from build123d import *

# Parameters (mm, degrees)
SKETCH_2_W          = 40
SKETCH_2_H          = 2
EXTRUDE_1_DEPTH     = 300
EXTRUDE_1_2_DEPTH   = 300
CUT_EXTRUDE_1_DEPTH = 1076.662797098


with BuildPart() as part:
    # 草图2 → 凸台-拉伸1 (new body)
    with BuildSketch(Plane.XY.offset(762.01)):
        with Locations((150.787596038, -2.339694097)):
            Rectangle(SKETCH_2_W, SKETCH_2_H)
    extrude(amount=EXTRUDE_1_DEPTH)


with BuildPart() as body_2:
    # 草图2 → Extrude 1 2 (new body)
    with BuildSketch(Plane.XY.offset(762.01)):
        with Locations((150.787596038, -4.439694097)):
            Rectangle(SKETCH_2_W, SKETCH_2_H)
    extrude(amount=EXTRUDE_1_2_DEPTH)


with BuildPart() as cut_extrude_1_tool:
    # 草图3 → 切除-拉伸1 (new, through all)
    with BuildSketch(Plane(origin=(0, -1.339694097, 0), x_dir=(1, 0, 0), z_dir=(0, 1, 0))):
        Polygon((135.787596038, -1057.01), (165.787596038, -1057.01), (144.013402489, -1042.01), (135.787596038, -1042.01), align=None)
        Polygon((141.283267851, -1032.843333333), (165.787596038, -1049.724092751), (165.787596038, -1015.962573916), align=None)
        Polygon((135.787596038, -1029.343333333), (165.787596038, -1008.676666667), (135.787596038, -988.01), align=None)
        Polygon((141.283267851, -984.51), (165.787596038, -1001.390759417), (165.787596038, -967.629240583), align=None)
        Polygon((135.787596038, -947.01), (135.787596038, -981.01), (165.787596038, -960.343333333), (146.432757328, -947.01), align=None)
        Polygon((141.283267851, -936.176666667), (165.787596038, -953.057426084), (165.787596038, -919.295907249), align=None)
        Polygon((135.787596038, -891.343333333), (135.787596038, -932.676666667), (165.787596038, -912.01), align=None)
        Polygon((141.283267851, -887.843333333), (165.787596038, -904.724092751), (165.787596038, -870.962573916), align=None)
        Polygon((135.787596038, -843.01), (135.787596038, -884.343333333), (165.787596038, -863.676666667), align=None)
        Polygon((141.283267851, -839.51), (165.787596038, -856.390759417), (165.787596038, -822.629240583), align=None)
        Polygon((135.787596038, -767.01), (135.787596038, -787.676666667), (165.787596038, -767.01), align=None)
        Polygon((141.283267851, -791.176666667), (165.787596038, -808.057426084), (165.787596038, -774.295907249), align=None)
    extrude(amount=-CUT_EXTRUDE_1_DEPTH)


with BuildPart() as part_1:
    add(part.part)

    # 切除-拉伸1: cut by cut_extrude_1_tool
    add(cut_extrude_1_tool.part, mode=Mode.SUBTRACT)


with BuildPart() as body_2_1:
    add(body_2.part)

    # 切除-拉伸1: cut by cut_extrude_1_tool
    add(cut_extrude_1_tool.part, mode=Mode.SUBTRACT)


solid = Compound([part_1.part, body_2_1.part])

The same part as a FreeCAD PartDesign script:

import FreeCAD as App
import Part
import Sketcher
Q = App.Units.Quantity


def add_polygon(sketch, points):
    """Adds a closed chain of lines whose ends are joined by coincident constraints."""
    first, n = sketch.GeometryCount, len(points)
    for a, b in zip(points, points[1:] + points[:1]):
        sketch.addGeometry(Part.LineSegment(App.Vector(*a, 0), App.Vector(*b, 0)), False)
    for i in range(n):
        sketch.addConstraint(Sketcher.Constraint("Coincident", first + i, 2, first + (i + 1) % n, 1))

doc = App.newDocument("Part")
body = doc.addObject("PartDesign::Body", "Body")

# Sketch on XY plane
sketch1 = body.newObject("Sketcher::SketchObject", "Sketch")
sketch1.AttachmentSupport = (doc.getObject("XY_Plane"), [""])
sketch1.MapMode = "FlatFace"
sketch1.AttachmentOffset = App.Placement(App.Vector(0, 0, 762.01), App.Rotation())
add_polygon(sketch1, [(130.787596, -1.339694), (130.787596, -3.339694), (170.787596, -3.339694), (170.787596, -1.339694)])  # lines 0-3
sketch1.addConstraint([
    Sketcher.Constraint("Vertical", 0),
    Sketcher.Constraint("Horizontal", 1),
    Sketcher.Constraint("Vertical", 2),
    Sketcher.Constraint("Horizontal", 3),
    Sketcher.Constraint("DistanceX", 1, 1, 1, 2, Q("40 mm")),
    Sketcher.Constraint("DistanceY", 0, 2, 0, 1, Q("2 mm")),
    Sketcher.Constraint("DistanceX", -1, 1, 0, 2, Q("130.787596 mm")),
    Sketcher.Constraint("DistanceY", 0, 2, -1, 1, Q("3.339694 mm")),
])
pad1 = body.newObject("PartDesign::Pad", "Pad")
pad1.Profile = sketch1
pad1.Length = 300
body2 = doc.addObject("PartDesign::Body", "Body001")

# Sketch on XY plane
sketch2 = body2.newObject("Sketcher::SketchObject", "Sketch001")
sketch2.AttachmentSupport = (doc.getObject("XY_Plane001"), [""])
sketch2.MapMode = "FlatFace"
sketch2.AttachmentOffset = App.Placement(App.Vector(0, 0, 762.01), App.Rotation())
add_polygon(sketch2, [(130.787596, -3.439694), (130.787596, -5.439694), (170.787596, -5.439694), (170.787596, -3.439694)])  # lines 0-3
sketch2.addConstraint([
    Sketcher.Constraint("Vertical", 0),
    Sketcher.Constraint("Horizontal", 1),
    Sketcher.Constraint("Vertical", 2),
    Sketcher.Constraint("Horizontal", 3),
    Sketcher.Constraint("DistanceX", 1, 1, 1, 2, Q("40 mm")),
    Sketcher.Constraint("DistanceY", 0, 2, 0, 1, Q("2 mm")),
    Sketcher.Constraint("DistanceX", -1, 1, 0, 2, Q("130.787596 mm")),
    Sketcher.Constraint("DistanceY", 0, 2, -1, 1, Q("5.439694 mm")),
])
pad2 = body2.newObject("PartDesign::Pad", "Pad001")
pad2.Profile = sketch2
pad2.Length = 300
body3 = doc.addObject("PartDesign::Body", "Body002")
body3.AllowCompound = True

# Sketch on XZ plane
sketch3 = body3.newObject("Sketcher::SketchObject", "Sketch002")
sketch3.AttachmentSupport = (doc.getObject("XZ_Plane002"), [""])
sketch3.MapMode = "FlatFace"
sketch3.AttachmentOffset = App.Placement(App.Vector(0, 0, 1.339694), App.Rotation())
add_polygon(sketch3, [(135.787596, 1057.01), (165.787596, 1057.01), (144.013402, 1042.01), (135.787596, 1042.01)])  # lines 0-3
add_polygon(sketch3, [(141.283268, 1032.843333), (165.787596, 1049.724093), (165.787596, 1015.962574)])  # lines 4-6
add_polygon(sketch3, [(135.787596, 1029.343333), (165.787596, 1008.676667), (135.787596, 988.01)])  # lines 7-9
add_polygon(sketch3, [(141.283268, 984.51), (165.787596, 1001.390759), (165.787596, 967.629241)])  # lines 10-12
add_polygon(sketch3, [(135.787596, 947.01), (135.787596, 981.01), (165.787596, 960.343333), (146.432757, 947.01)])  # lines 13-16
add_polygon(sketch3, [(141.283268, 936.176667), (165.787596, 953.057426), (165.787596, 919.295907)])  # lines 17-19
add_polygon(sketch3, [(135.787596, 891.343333), (135.787596, 932.676667), (165.787596, 912.01)])  # lines 20-22
add_polygon(sketch3, [(141.283268, 887.843333), (165.787596, 904.724093), (165.787596, 870.962574)])  # lines 23-25
add_polygon(sketch3, [(135.787596, 843.01), (135.787596, 884.343333), (165.787596, 863.676667)])  # lines 26-28
add_polygon(sketch3, [(141.283268, 839.51), (165.787596, 856.390759), (165.787596, 822.629241)])  # lines 29-31
add_polygon(sketch3, [(135.787596, 767.01), (135.787596, 787.676667), (165.787596, 767.01)])  # lines 32-34
add_polygon(sketch3, [(141.283268, 791.176667), (165.787596, 808.057426), (165.787596, 774.295907)])  # lines 35-37
sketch3.addConstraint([
    Sketcher.Constraint("Horizontal", 0),
    Sketcher.Constraint("Horizontal", 2),
    Sketcher.Constraint("Vertical", 3),
    Sketcher.Constraint("Vertical", 5),
    Sketcher.Constraint("Vertical", 9),
    Sketcher.Constraint("Vertical", 11),
    Sketcher.Constraint("Vertical", 13),
    Sketcher.Constraint("Horizontal", 16),
    Sketcher.Constraint("Vertical", 18),
    Sketcher.Constraint("Vertical", 20),
    Sketcher.Constraint("Vertical", 24),
    Sketcher.Constraint("Vertical", 26),
    Sketcher.Constraint("Vertical", 30),
    Sketcher.Constraint("Vertical", 32),
    Sketcher.Constraint("Horizontal", 34),
    Sketcher.Constraint("Vertical", 36),
    Sketcher.Constraint("Parallel", 1, 4),
    Sketcher.Constraint("Parallel", 6, 7),
    Sketcher.Constraint("Parallel", 4, 8),
    Sketcher.Constraint("Parallel", 8, 10),
    Sketcher.Constraint("Parallel", 7, 12),
    Sketcher.Constraint("Parallel", 12, 14),
    Sketcher.Constraint("Parallel", 10, 15),
    Sketcher.Constraint("Parallel", 15, 17),
    Sketcher.Constraint("Parallel", 14, 19),
    Sketcher.Constraint("Parallel", 19, 21),
    Sketcher.Constraint("Parallel", 17, 22),
    Sketcher.Constraint("Parallel", 22, 23),
    Sketcher.Constraint("Parallel", 21, 25),
    Sketcher.Constraint("Parallel", 25, 27),
    Sketcher.Constraint("Parallel", 23, 28),
    Sketcher.Constraint("Parallel", 28, 29),
    Sketcher.Constraint("Parallel", 27, 31),
    Sketcher.Constraint("Parallel", 31, 33),
    Sketcher.Constraint("Parallel", 29, 35),
    Sketcher.Constraint("Parallel", 33, 37),
    Sketcher.Constraint("Vertical", 0, 2, 4, 2),
    Sketcher.Constraint("Vertical", 5, 2, 7, 2),
    Sketcher.Constraint("Vertical", 3, 2, 8, 2),
    Sketcher.Constraint("Vertical", 7, 2, 10, 2),
    Sketcher.Constraint("Vertical", 6, 2, 12, 2),
    Sketcher.Constraint("Vertical", 9, 2, 13, 2),
    Sketcher.Constraint("Vertical", 11, 2, 14, 2),
    Sketcher.Constraint("Vertical", 14, 2, 17, 2),
    Sketcher.Constraint("Vertical", 12, 2, 19, 2),
    Sketcher.Constraint("Vertical", 16, 2, 20, 2),
    Sketcher.Constraint("Vertical", 18, 2, 21, 2),
    Sketcher.Constraint("Vertical", 21, 2, 23, 2),
    Sketcher.Constraint("Vertical", 19, 2, 25, 2),
    Sketcher.Constraint("Vertical", 22, 2, 26, 2),
    Sketcher.Constraint("Vertical", 24, 2, 27, 2),
    Sketcher.Constraint("Vertical", 27, 2, 29, 2),
    Sketcher.Constraint("Vertical", 25, 2, 31, 2),
    Sketcher.Constraint("Vertical", 28, 2, 32, 2),
    Sketcher.Constraint("Vertical", 30, 2, 33, 2),
    Sketcher.Constraint("Vertical", 33, 2, 35, 2),
    Sketcher.Constraint("Vertical", 31, 2, 37, 2),
    Sketcher.Constraint("Equal", 4, 6),
    Sketcher.Constraint("DistanceX", 0, 1, 0, 2, Q("30 mm")),
    Sketcher.Constraint("DistanceY", 3, 1, 3, 2, Q("15 mm")),
    Sketcher.Constraint("DistanceY", 13, 1, 13, 2, Q("34 mm")),
    Sketcher.Constraint("DistanceY", 8, 2, 2, 2, Q("54 mm")),
    Sketcher.Constraint("DistanceY", 13, 2, 8, 2, Q("7 mm")),
    Sketcher.Constraint("DistanceY", 21, 2, 15, 2, Q("35 mm")),
    Sketcher.Constraint("DistanceY", 26, 2, 22, 2, Q("7 mm")),
    Sketcher.Constraint("DistanceY", 32, 2, 27, 2, Q("76 mm")),
    Sketcher.Constraint("DistanceY", 9, 2, 6, 2, Q("3.5 mm")),
    Sketcher.Constraint("DistanceY", 12, 2, 8, 2, Q("3.5 mm")),
    Sketcher.Constraint("DistanceY", 20, 2, 19, 2, Q("3.5 mm")),
    Sketcher.Constraint("DistanceY", 25, 2, 22, 2, Q("3.5 mm")),
    Sketcher.Constraint("DistanceY", 31, 2, 28, 2, Q("3.5 mm")),
    Sketcher.Constraint("DistanceY", 32, 2, 37, 2, Q("3.5 mm")),
    Sketcher.Constraint("DistanceY", -1, 1, 0, 2, Q("1057.01 mm")),
    Sketcher.Constraint("DistanceY", -1, 1, 28, 2, Q("843.01 mm")),
    Sketcher.Constraint("DistanceY", 5, 2, 5, 1, Q("33.761519 mm")),
    Sketcher.Constraint("DistanceX", -1, 1, 0, 2, Q("165.787596 mm")),
])
pad3 = body3.newObject("PartDesign::Pad", "Pad002")
pad3.Profile = sketch3
pad3.Length = 1076.662797
doc.recompute()

body4 = doc.addObject("PartDesign::Body", "Body003")
body4.BaseFeature = body3
boolean = body.newObject("PartDesign::Boolean", "Boolean")
boolean.Type = "Cut"
boolean.addObjects([body4])
doc.recompute()

boolean2 = body2.newObject("PartDesign::Boolean", "Boolean001")
boolean2.Type = "Cut"
boolean2.addObjects([body3])

doc.recompute()
